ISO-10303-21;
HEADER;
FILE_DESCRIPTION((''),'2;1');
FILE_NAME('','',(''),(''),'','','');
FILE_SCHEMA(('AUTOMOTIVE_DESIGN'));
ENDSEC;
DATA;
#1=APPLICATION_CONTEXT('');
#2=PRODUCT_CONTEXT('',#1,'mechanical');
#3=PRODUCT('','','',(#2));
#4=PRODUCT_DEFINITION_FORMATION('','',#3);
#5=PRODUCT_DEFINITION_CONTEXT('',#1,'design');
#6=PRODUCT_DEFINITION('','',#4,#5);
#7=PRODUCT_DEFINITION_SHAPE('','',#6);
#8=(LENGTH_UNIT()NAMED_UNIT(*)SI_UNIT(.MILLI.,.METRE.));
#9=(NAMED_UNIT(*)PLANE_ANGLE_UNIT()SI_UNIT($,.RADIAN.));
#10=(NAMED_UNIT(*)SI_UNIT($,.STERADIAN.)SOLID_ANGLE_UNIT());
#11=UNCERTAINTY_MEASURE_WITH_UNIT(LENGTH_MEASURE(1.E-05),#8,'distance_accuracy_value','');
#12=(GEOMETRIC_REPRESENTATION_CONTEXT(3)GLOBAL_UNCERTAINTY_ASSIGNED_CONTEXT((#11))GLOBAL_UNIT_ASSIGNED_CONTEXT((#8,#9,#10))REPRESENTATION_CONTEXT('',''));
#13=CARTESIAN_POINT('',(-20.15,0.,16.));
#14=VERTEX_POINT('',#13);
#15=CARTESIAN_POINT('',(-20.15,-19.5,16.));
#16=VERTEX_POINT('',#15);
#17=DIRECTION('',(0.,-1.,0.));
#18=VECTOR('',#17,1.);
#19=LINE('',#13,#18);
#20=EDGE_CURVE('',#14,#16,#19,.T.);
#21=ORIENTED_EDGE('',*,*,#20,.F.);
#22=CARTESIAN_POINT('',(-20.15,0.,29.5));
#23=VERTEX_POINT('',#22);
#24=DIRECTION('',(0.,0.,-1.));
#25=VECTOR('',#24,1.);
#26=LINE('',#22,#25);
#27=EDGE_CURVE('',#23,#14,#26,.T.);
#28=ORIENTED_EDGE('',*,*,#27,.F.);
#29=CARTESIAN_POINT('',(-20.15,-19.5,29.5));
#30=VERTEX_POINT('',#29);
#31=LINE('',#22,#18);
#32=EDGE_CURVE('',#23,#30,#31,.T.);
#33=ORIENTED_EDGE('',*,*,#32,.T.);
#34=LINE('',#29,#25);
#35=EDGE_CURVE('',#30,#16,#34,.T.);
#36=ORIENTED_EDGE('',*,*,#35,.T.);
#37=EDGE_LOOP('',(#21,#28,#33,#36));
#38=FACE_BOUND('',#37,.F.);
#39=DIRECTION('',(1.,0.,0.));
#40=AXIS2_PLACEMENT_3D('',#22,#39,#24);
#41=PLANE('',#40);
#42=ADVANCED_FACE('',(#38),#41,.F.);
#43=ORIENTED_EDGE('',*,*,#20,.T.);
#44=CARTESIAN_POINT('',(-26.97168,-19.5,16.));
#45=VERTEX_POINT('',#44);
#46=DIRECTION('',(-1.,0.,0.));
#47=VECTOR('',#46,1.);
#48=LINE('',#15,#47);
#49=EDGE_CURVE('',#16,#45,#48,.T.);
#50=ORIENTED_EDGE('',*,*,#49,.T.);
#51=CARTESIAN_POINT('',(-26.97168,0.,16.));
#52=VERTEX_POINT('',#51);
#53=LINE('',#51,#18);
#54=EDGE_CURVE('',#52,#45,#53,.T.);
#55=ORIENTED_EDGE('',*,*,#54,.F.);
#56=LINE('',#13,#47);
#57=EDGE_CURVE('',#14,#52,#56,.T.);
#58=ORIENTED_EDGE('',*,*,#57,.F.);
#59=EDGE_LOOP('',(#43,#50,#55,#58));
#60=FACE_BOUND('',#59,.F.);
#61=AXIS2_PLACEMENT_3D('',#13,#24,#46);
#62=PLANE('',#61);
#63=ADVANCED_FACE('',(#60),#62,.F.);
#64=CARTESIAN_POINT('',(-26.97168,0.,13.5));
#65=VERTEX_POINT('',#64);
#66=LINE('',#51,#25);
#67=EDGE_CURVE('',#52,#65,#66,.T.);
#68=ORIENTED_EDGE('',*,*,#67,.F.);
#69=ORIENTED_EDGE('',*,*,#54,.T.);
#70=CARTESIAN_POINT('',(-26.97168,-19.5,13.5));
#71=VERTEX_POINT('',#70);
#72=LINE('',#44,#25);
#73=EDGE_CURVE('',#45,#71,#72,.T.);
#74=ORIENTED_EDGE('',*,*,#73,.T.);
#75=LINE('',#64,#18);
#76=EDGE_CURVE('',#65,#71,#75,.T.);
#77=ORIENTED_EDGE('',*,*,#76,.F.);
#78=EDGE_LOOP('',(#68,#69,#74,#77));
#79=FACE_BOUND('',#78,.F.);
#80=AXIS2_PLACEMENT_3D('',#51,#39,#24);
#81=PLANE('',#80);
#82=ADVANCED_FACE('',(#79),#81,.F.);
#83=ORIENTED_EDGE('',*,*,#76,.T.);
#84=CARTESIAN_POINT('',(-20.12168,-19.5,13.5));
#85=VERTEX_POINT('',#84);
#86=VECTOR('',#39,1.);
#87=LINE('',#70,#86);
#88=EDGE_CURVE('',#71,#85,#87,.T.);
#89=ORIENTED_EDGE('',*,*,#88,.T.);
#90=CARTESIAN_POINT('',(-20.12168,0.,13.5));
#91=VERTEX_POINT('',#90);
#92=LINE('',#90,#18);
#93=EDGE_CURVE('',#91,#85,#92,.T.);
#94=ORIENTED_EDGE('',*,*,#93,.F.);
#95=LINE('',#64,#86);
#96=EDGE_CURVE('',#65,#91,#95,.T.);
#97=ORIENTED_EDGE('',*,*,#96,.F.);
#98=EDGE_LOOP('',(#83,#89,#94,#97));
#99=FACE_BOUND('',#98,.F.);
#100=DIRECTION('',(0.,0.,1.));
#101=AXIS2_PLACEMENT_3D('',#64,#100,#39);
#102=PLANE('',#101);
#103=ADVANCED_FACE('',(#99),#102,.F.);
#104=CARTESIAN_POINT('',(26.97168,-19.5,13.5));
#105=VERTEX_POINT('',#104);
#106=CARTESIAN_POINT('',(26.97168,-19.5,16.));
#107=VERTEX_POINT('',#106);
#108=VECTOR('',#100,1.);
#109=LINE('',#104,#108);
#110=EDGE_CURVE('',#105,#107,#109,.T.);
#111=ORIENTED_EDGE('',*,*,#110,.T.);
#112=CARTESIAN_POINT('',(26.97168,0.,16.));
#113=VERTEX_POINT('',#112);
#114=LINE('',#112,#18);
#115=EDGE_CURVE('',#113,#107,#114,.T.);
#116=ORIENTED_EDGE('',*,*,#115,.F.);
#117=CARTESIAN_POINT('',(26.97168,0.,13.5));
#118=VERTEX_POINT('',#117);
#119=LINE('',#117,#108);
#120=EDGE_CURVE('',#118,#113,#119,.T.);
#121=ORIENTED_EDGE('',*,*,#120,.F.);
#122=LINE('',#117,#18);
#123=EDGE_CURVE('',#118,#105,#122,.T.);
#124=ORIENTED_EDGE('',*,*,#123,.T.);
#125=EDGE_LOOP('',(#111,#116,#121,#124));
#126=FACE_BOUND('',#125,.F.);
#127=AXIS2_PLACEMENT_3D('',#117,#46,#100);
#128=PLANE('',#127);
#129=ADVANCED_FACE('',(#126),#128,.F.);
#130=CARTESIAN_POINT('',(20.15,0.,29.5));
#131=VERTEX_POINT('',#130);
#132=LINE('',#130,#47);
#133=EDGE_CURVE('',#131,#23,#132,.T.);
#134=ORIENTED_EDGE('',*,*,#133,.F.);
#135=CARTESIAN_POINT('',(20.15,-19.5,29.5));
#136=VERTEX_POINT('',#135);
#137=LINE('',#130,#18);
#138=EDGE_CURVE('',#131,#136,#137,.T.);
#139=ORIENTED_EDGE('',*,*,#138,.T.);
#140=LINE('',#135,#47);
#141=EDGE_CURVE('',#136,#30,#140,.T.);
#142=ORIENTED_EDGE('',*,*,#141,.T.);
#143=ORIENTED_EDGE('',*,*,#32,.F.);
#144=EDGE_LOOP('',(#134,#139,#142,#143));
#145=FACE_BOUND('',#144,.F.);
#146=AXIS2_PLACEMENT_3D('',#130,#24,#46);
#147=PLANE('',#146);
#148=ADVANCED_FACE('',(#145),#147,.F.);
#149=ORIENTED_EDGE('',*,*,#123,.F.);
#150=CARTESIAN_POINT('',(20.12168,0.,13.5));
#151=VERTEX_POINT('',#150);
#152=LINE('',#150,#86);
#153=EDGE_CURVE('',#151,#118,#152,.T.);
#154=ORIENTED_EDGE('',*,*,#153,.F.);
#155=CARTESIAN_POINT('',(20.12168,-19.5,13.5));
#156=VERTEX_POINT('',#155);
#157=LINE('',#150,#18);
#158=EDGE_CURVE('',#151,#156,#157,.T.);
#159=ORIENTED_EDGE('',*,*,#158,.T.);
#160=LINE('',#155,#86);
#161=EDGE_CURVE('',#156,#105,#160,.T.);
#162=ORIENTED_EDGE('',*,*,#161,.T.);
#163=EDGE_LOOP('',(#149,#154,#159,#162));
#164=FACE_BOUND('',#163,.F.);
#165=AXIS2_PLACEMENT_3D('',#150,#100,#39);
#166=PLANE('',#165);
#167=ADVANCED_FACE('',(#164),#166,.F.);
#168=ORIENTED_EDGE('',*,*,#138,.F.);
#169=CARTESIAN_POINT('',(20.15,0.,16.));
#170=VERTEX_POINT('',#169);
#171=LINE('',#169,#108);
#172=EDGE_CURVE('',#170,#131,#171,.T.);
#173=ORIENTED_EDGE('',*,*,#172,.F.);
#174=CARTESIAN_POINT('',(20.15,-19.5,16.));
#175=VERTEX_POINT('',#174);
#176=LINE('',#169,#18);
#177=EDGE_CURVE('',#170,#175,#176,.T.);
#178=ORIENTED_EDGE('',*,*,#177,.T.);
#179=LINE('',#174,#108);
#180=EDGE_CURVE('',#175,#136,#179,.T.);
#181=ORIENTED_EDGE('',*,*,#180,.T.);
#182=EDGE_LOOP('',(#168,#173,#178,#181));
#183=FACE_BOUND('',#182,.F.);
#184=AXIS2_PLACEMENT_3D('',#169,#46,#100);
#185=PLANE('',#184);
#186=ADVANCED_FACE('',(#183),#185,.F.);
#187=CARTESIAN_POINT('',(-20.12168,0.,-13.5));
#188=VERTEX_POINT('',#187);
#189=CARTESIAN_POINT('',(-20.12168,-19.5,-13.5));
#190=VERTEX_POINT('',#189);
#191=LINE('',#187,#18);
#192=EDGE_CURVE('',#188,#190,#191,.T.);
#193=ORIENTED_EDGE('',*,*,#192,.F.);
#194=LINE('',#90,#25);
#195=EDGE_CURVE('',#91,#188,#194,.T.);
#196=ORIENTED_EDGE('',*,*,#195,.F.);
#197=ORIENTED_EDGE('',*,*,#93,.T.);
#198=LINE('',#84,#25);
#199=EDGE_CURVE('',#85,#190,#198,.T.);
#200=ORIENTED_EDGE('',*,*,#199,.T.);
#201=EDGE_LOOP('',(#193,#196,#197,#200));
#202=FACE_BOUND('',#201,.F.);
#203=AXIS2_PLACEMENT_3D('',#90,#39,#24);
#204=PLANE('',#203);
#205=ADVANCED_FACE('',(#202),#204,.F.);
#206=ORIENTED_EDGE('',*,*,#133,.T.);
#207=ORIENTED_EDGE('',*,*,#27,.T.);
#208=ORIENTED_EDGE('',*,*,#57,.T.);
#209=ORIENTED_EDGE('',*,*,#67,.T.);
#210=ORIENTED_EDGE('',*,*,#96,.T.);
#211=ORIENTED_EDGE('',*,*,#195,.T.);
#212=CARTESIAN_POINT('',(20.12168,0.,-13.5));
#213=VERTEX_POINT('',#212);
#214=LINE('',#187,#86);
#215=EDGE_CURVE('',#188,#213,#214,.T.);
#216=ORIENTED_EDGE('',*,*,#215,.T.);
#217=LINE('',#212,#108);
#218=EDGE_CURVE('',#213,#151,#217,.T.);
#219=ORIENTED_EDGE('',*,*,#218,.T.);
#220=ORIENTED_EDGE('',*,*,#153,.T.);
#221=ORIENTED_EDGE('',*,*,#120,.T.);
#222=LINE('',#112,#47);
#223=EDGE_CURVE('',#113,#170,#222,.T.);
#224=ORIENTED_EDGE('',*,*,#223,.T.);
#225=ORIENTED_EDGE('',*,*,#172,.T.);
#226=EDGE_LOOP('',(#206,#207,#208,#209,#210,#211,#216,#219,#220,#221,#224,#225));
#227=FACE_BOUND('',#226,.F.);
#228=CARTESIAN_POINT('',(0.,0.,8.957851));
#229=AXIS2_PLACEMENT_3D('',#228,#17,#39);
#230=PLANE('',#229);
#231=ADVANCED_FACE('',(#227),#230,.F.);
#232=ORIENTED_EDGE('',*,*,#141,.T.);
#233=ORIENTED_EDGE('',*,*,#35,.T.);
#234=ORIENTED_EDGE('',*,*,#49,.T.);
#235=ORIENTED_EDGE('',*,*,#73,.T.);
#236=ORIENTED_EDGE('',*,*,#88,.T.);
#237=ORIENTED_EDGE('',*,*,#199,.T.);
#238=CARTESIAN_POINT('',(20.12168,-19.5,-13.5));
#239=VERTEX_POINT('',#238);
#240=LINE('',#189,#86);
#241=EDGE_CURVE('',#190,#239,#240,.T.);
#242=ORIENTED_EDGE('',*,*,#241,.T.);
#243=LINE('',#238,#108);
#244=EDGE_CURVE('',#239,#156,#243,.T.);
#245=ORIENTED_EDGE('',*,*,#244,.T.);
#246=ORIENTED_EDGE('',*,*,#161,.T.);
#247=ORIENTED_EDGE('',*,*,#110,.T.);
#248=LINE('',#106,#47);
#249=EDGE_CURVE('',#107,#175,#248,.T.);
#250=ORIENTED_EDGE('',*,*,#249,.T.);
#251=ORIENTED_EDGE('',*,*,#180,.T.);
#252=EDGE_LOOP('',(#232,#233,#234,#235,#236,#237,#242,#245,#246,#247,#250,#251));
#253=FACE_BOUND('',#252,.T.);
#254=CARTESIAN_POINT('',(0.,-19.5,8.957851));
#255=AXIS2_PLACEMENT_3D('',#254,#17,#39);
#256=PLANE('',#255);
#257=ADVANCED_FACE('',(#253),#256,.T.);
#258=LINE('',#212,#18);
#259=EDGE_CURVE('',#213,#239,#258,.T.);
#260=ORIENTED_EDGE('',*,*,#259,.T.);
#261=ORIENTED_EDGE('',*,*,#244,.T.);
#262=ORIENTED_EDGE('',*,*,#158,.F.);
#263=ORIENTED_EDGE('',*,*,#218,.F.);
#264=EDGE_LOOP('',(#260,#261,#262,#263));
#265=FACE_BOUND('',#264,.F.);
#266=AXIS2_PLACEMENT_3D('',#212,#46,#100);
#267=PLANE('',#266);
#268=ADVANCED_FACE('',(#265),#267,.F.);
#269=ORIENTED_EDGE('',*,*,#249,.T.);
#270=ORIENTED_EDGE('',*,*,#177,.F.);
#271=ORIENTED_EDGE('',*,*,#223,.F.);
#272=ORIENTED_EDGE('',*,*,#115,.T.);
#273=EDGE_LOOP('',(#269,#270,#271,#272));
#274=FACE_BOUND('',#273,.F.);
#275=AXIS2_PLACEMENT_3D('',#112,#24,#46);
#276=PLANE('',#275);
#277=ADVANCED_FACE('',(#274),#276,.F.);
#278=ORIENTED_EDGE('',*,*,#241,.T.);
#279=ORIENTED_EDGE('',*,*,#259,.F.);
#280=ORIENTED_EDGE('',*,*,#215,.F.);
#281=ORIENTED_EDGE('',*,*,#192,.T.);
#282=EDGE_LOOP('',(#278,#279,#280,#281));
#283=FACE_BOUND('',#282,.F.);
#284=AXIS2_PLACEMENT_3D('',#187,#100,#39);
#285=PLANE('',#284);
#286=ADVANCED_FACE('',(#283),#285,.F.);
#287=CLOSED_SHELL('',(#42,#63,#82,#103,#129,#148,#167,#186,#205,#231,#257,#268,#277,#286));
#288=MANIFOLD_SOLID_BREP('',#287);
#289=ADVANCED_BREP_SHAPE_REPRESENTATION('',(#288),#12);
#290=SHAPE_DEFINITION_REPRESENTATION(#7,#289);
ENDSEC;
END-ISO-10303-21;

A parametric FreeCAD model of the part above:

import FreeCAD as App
import Part
import Sketcher
from FreeCAD import Vector

doc = App.newDocument("Part")
params = doc.addObject("Spreadsheet::Sheet", "Params")
for row, (alias, value) in enumerate([
    ("sketch1_height", "27 mm"),
    ("sketch1_width", "40.3 mm"),
    ("sketch1_height2", "2.5 mm"),
    ("sketch1_height3", "13.5 mm"),
    ("sketch1_width2", "6.85 mm"),
    ("pad1_length", "19.5 mm"),
], start=1):
    params.set(f"A{row}", alias)
    params.set(f"B{row}", "=" + value)
    params.setAlias(f"B{row}", alias)

body = doc.addObject("PartDesign::Body", "Body")

sketch1 = doc.addObject("Sketcher::SketchObject", "Sketch")
body.addObject(sketch1)
sketch1.AttachmentSupport = (doc.XZ_Plane, [""])
sketch1.MapMode = "FlatFace"
sketch1.addGeometry(Part.LineSegment(Vector(-20.12168, 13.5, 0), Vector(-20.12168, -13.5, 0)), False)
sketch1.addGeometry(Part.LineSegment(Vector(-20.12168, -13.5, 0), Vector(20.12168, -13.5, 0)), False)
sketch1.addGeometry(Part.LineSegment(Vector(20.12168, -13.5, 0), Vector(20.12168, 13.5, 0)), False)
sketch1.addGeometry(Part.LineSegment(Vector(20.12168, 13.5, 0), Vector(26.97168, 13.5, 0)), False)
sketch1.addGeometry(Part.LineSegment(Vector(26.97168, 13.5, 0), Vector(26.97168, 16, 0)), False)
sketch1.addGeometry(Part.LineSegment(Vector(26.97168, 16, 0), Vector(20.15, 16, 0)), False)
sketch1.addGeometry(Part.LineSegment(Vector(20.15, 16, 0), Vector(20.15, 29.5, 0)), False)
sketch1.addGeometry(Part.LineSegment(Vector(20.15, 29.5, 0), Vector(-20.15, 29.5, 0)), False)
sketch1.addGeometry(Part.LineSegment(Vector(-20.15, 29.5, 0), Vector(-20.15, 16, 0)), False)
sketch1.addGeometry(Part.LineSegment(Vector(-20.15, 16, 0), Vector(-26.97168, 16, 0)), False)
sketch1.addGeometry(Part.LineSegment(Vector(-26.97168, 16, 0), Vector(-26.97168, 13.5, 0)), False)
sketch1.addGeometry(Part.LineSegment(Vector(-26.97168, 13.5, 0), Vector(-20.12168, 13.5, 0)), False)
sketch1.addConstraint(Sketcher.Constraint("Coincident", 0, 2, 1, 1))
sketch1.addConstraint(Sketcher.Constraint("Coincident", 1, 2, 2, 1))
sketch1.addConstraint(Sketcher.Constraint("Coincident", 2, 2, 3, 1))
sketch1.addConstraint(Sketcher.Constraint("Coincident", 3, 2, 4, 1))
sketch1.addConstraint(Sketcher.Constraint("Coincident", 4, 2, 5, 1))
sketch1.addConstraint(Sketcher.Constraint("Coincident", 5, 2, 6, 1))
sketch1.addConstraint(Sketcher.Constraint("Coincident", 6, 2, 7, 1))
sketch1.addConstraint(Sketcher.Constraint("Coincident", 7, 2, 8, 1))
sketch1.addConstraint(Sketcher.Constraint("Coincident", 8, 2, 9, 1))
sketch1.addConstraint(Sketcher.Constraint("Coincident", 9, 2, 10, 1))
sketch1.addConstraint(Sketcher.Constraint("Coincident", 10, 2, 11, 1))
sketch1.addConstraint(Sketcher.Constraint("Coincident", 11, 2, 0, 1))
sketch1.addConstraint(Sketcher.Constraint("Vertical", 0))
sketch1.addConstraint(Sketcher.Constraint("Horizontal", 1))
sketch1.addConstraint(Sketcher.Constraint("Vertical", 2))
sketch1.addConstraint(Sketcher.Constraint("Horizontal", 3))
sketch1.addConstraint(Sketcher.Constraint("Vertical", 4))
sketch1.addConstraint(Sketcher.Constraint("Horizontal", 5))
sketch1.addConstraint(Sketcher.Constraint("Vertical", 6))
sketch1.addConstraint(Sketcher.Constraint("Horizontal", 7))
sketch1.addConstraint(Sketcher.Constraint("Vertical", 8))
sketch1.addConstraint(Sketcher.Constraint("Horizontal", 9))
sketch1.addConstraint(Sketcher.Constraint("Vertical", 10))
sketch1.addConstraint(Sketcher.Constraint("Horizontal", 11))
sketch1.addConstraint(Sketcher.Constraint("Symmetric", 0, 2, 2, 2, -1, 1))
sketch1.addConstraint(Sketcher.Constraint("Symmetric", 5, 2, 8, 2, -2))
sketch1.addConstraint(Sketcher.Constraint("Symmetric", 3, 2, 10, 2, -2))
sketch1.addConstraint(Sketcher.Constraint("DistanceY", 0, 2, 0, 1, 27.0))
sketch1.addConstraint(Sketcher.Constraint("DistanceX", 7, 2, 7, 1, 40.3))
sketch1.addConstraint(Sketcher.Constraint("DistanceY", 4, 1, 4, 2, 2.5))
sketch1.addConstraint(Sketcher.Constraint("DistanceY", 6, 1, 6, 2, 13.5))
sketch1.addConstraint(Sketcher.Constraint("DistanceX", 3, 1, 3, 2, 6.85))
sketch1.addConstraint(Sketcher.Constraint("DistanceX", 1, 1, 1, 2, 40.24336))
sketch1.setExpression("Constraints[27]", "Params.sketch1_height")
sketch1.setExpression("Constraints[28]", "Params.sketch1_width")
sketch1.setExpression("Constraints[29]", "Params.sketch1_height2")
sketch1.setExpression("Constraints[30]", "Params.sketch1_height3")
sketch1.setExpression("Constraints[31]", "Params.sketch1_width2")
pad1 = doc.addObject("PartDesign::Pad", "Pad")
body.addObject(pad1)
pad1.Profile = sketch1
pad1.setExpression("Length", "Params.pad1_length")

doc.recompute()
